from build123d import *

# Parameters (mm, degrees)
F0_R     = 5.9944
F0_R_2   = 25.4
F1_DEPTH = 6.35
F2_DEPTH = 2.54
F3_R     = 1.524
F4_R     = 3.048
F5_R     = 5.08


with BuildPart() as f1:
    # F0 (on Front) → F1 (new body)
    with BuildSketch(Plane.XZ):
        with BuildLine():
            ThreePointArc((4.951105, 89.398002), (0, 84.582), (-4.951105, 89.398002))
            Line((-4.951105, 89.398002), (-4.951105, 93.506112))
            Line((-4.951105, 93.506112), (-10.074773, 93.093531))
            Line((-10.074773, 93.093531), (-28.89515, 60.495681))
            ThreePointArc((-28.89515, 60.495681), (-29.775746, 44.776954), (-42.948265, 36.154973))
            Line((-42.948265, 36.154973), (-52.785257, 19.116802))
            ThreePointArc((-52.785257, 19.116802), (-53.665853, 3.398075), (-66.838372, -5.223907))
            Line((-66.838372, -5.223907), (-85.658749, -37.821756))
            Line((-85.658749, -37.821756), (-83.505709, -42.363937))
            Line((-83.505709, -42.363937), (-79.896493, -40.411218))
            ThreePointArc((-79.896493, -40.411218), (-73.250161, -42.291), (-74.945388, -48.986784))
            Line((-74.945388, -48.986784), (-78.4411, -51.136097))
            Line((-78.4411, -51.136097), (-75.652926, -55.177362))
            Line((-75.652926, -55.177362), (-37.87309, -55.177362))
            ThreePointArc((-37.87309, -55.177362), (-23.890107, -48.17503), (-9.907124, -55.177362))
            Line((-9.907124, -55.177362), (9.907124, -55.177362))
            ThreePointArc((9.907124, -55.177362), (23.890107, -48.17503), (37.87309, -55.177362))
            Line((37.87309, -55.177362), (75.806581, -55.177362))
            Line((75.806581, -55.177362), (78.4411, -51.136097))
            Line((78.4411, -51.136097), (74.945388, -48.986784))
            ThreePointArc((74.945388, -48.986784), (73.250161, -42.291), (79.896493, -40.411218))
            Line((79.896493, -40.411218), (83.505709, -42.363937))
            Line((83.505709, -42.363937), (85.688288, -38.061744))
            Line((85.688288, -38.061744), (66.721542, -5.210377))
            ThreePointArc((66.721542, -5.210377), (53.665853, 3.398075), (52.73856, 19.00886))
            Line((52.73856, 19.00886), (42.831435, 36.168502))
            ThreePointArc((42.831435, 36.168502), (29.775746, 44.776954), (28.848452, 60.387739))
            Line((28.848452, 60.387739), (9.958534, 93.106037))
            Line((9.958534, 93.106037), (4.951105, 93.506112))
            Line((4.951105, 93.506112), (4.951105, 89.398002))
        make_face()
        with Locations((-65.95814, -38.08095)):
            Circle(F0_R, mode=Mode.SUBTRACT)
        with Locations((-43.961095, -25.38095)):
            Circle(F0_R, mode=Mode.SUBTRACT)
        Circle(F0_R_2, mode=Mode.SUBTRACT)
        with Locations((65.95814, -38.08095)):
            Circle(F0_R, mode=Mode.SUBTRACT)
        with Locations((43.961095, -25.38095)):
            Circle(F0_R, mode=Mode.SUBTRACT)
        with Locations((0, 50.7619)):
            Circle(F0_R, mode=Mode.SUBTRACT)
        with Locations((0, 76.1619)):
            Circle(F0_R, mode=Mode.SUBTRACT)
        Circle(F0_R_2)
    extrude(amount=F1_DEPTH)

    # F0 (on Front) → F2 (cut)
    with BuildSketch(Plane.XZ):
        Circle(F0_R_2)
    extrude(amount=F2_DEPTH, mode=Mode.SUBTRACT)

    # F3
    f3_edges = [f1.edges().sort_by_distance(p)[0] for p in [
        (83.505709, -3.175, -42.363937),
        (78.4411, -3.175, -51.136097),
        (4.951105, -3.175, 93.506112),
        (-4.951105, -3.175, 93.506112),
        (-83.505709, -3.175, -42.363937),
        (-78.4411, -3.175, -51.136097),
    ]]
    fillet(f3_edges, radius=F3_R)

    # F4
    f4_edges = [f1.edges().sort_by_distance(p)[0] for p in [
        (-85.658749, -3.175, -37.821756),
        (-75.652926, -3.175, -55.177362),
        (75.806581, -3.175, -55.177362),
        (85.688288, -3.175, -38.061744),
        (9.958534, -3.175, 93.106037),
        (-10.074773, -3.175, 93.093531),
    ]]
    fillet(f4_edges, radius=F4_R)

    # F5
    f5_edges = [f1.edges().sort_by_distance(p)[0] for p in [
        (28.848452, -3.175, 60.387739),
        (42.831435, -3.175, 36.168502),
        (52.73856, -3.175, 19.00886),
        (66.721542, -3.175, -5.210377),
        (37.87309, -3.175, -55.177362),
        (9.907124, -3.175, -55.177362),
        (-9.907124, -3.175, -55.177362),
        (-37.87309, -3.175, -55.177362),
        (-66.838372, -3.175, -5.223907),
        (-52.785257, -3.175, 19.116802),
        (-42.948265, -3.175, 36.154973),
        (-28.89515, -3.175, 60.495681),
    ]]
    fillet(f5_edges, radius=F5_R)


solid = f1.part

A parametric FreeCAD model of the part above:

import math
import FreeCAD as App
import Part
import Sketcher

V = App.Vector
Q = App.Units.Quantity


def edges_at(feature, points):
    """Names of the edges that pass closest to the given points."""
    edges = feature.Shape.Edges
    near = lambda p: min(range(len(edges)), key=lambda i: edges[i].distToShape(Part.Vertex(*p))[0])
    return sorted({f"Edge{near(p) + 1}" for p in points})

doc = App.newDocument("Part")
params = doc.addObject("Spreadsheet::Sheet", "Params")
for row, (alias, value) in enumerate([
    ("sketch1_diameter", "0.472 in"),
    ("sketch1_diameter2", "0.472 in"),
    ("sketch1_diameter3", "0.472 in"),
    ("sketch1_diameter4", "0.472 in"),
    ("sketch1_diameter5", "0.472 in"),
    ("pad1_length", "0.25 in"),
    ("sketch2_diameter", "2 in"),
    ("pocket1_length", "0.1 in"),
    ("fillet_radius", "0.06 in"),
    ("fillet2_radius", "0.12 in"),
    ("fillet3_radius", "0.2 in"),
], start=1):
    params.set(f"A{row}", alias)
    params.set(f"B{row}", "=" + value)
    params.setAlias(f"B{row}", alias)

body = doc.addObject("PartDesign::Body", "Body")

sketch1 = doc.addObject("Sketcher::SketchObject", "Sketch")
body.addObject(sketch1)
sketch1.AttachmentSupport = (doc.XZ_Plane, [""])
sketch1.MapMode = "FlatFace"
sketch1.addGeometry(Part.ArcOfCircle(Part.Circle(V(0, 89.535, 0), V(0, 0, 1), 4.953), math.radians(-178.415019), math.radians(-1.584981)), False)
sketch1.addGeometry(Part.LineSegment(V(-4.951105, 89.398002, 0), V(-4.951105, 93.506112, 0)), False)
sketch1.addGeometry(Part.LineSegment(V(-4.951105, 93.506112, 0), V(-10.074773, 93.093531, 0)), False)
sketch1.addGeometry(Part.LineSegment(V(-10.074773, 93.093531, 0), V(-28.89515, 60.495681, 0)), False)
sketch1.addGeometry(Part.ArcOfCircle(Part.Circle(V(-44.898714, 53.508204, 0), V(0, 0, 1), 17.462499), math.radians(-83.587049), math.radians(23.587046)), False)
sketch1.addGeometry(Part.LineSegment(V(-42.948265, 36.154973, 0), V(-52.785257, 19.116802, 0)), False)
sketch1.addGeometry(Part.ArcOfCircle(Part.Circle(V(-68.788822, 12.129325, 0), V(0, 0, 1), 17.462501), math.radians(-83.587045), math.radians(23.587044)), False)
sketch1.addGeometry(Part.LineSegment(V(-66.838372, -5.223907, 0), V(-85.658749, -37.821756, 0)), False)
sketch1.addGeometry(Part.LineSegment(V(-85.658749, -37.821756, 0), V(-83.505709, -42.363937, 0)), False)
sketch1.addGeometry(Part.LineSegment(V(-83.505709, -42.363937, 0), V(-79.896493, -40.411218, 0)), False)
sketch1.addGeometry(Part.ArcOfCircle(Part.Circle(V(-77.539585, -44.7675, 0), V(0, 0, 1), 4.953), math.radians(-58.415012), math.radians(118.415009)), False)
sketch1.addGeometry(Part.LineSegment(V(-74.945388, -48.986784, 0), V(-78.4411, -51.136097, 0)), False)
sketch1.addGeometry(Part.LineSegment(V(-78.4411, -51.136097, 0), V(-75.652926, -55.177362, 0)), False)
sketch1.addGeometry(Part.LineSegment(V(-75.652926, -55.177362, 0), V(-37.87309, -55.177362, 0)), False)
sketch1.addGeometry(Part.ArcOfCircle(Part.Circle(V(-23.890107, -65.637532, 0), V(0, 0, 1), 17.462502), math.radians(36.798849), math.radians(143.201151)), False)
sketch1.addGeometry(Part.LineSegment(V(-9.907124, -55.177362, 0), V(9.907124, -55.177362, 0)), False)
sketch1.addGeometry(Part.ArcOfCircle(Part.Circle(V(23.890107, -65.637532, 0), V(0, 0, 1), 17.462502), math.radians(36.798849), math.radians(143.201151)), False)
sketch1.addGeometry(Part.LineSegment(V(37.87309, -55.177362, 0), V(75.806581, -55.177362, 0)), False)
sketch1.addGeometry(Part.LineSegment(V(75.806581, -55.177362, 0), V(78.4411, -51.136097, 0)), False)
sketch1.addGeometry(Part.LineSegment(V(78.4411, -51.136097, 0), V(74.945388, -48.986784, 0)), False)
sketch1.addGeometry(Part.ArcOfCircle(Part.Circle(V(77.539585, -44.7675, 0), V(0, 0, 1), 4.953), math.radians(61.584991), math.radians(238.415012)), False)
sketch1.addGeometry(Part.LineSegment(V(79.896493, -40.411218, 0), V(83.505709, -42.363937, 0)), False)
sketch1.addGeometry(Part.LineSegment(V(83.505709, -42.363937, 0), V(85.688288, -38.061744, 0)), False)
sketch1.addGeometry(Part.LineSegment(V(85.688288, -38.061744, 0), V(66.721542, -5.210377, 0)), False)
sketch1.addGeometry(Part.ArcOfCircle(Part.Circle(V(68.788822, 12.129325, 0), V(0, 0, 1), 17.4625), math.radians(156.798841), math.radians(263.201155)), False)
sketch1.addGeometry(Part.LineSegment(V(52.73856, 19.00886, 0), V(42.831435, 36.168502, 0)), False)
sketch1.addGeometry(Part.ArcOfCircle(Part.Circle(V(44.898715, 53.508205, 0), V(0, 0, 1), 17.462501), math.radians(156.798847), math.radians(263.201153)), False)
sketch1.addGeometry(Part.LineSegment(V(28.848452, 60.387739, 0), V(9.958534, 93.106037, 0)), False)
sketch1.addGeometry(Part.LineSegment(V(9.958534, 93.106037, 0), V(4.951105, 93.506112, 0)), False)
sketch1.addGeometry(Part.LineSegment(V(4.951105, 93.506112, 0), V(4.951105, 89.398002, 0)), False)
sketch1.addGeometry(Part.Circle(V(-65.95814, -38.08095, 0), V(0, 0, 1), 5.9944), False)
sketch1.addGeometry(Part.Circle(V(-43.961095, -25.38095, 0), V(0, 0, 1), 5.9944), False)
sketch1.addGeometry(Part.Circle(V(65.95814, -38.08095, 0), V(0, 0, 1), 5.9944), False)
sketch1.addGeometry(Part.Circle(V(43.961095, -25.38095, 0), V(0, 0, 1), 5.9944), False)
sketch1.addGeometry(Part.Circle(V(0, 50.7619, 0), V(0, 0, 1), 5.9944), False)
sketch1.addGeometry(Part.Circle(V(0, 76.1619, 0), V(0, 0, 1), 5.9944), False)
sketch1.addConstraint(Sketcher.Constraint("Coincident", 0, 1, 1, 1))
sketch1.addConstraint(Sketcher.Constraint("Coincident", 1, 2, 2, 1))
sketch1.addConstraint(Sketcher.Constraint("Coincident", 2, 2, 3, 1))
sketch1.addConstraint(Sketcher.Constraint("Coincident", 3, 2, 4, 2))
sketch1.addConstraint(Sketcher.Constraint("Coincident", 4, 1, 5, 1))
sketch1.addConstraint(Sketcher.Constraint("Coincident", 5, 2, 6, 2))
sketch1.addConstraint(Sketcher.Constraint("Coincident", 6, 1, 7, 1))
sketch1.addConstraint(Sketcher.Constraint("Coincident", 7, 2, 8, 1))
sketch1.addConstraint(Sketcher.Constraint("Coincident", 8, 2, 9, 1))
sketch1.addConstraint(Sketcher.Constraint("Coincident", 9, 2, 10, 2))
sketch1.addConstraint(Sketcher.Constraint("Coincident", 10, 1, 11, 1))
sketch1.addConstraint(Sketcher.Constraint("Coincident", 11, 2, 12, 1))
sketch1.addConstraint(Sketcher.Constraint("Coincident", 12, 2, 13, 1))
sketch1.addConstraint(Sketcher.Constraint("Coincident", 13, 2, 14, 2))
sketch1.addConstraint(Sketcher.Constraint("Coincident", 14, 1, 15, 1))
sketch1.addConstraint(Sketcher.Constraint("Coincident", 15, 2, 16, 2))
sketch1.addConstraint(Sketcher.Constraint("Coincident", 16, 1, 17, 1))
sketch1.addConstraint(Sketcher.Constraint("Coincident", 17, 2, 18, 1))
sketch1.addConstraint(Sketcher.Constraint("Coincident", 18, 2, 19, 1))
sketch1.addConstraint(Sketcher.Constraint("Coincident", 19, 2, 20, 2))
sketch1.addConstraint(Sketcher.Constraint("Coincident", 20, 1, 21, 1))
sketch1.addConstraint(Sketcher.Constraint("Coincident", 21, 2, 22, 1))
sketch1.addConstraint(Sketcher.Constraint("Coincident", 22, 2, 23, 1))
sketch1.addConstraint(Sketcher.Constraint("Coincident", 23, 2, 24, 2))
sketch1.addConstraint(Sketcher.Constraint("Coincident", 24, 1, 25, 1))
sketch1.addConstraint(Sketcher.Constraint("Coincident", 25, 2, 26, 2))
sketch1.addConstraint(Sketcher.Constraint("Coincident", 26, 1, 27, 1))
sketch1.addConstraint(Sketcher.Constraint("Coincident", 27, 2, 28, 1))
sketch1.addConstraint(Sketcher.Constraint("Coincident", 28, 2, 29, 1))
sketch1.addConstraint(Sketcher.Constraint("Coincident", 29, 2, 0, 2))
sketch1.addConstraint(Sketcher.Constraint("Vertical", 1))
sketch1.addConstraint(Sketcher.Constraint("Horizontal", 13))
sketch1.addConstraint(Sketcher.Constraint("Horizontal", 15))
sketch1.addConstraint(Sketcher.Constraint("Horizontal", 17))
sketch1.addConstraint(Sketcher.Constraint("Vertical", 29))
sketch1.addConstraint(Sketcher.Constraint("PointOnObject", 0, 3, -2))
sketch1.addConstraint(Sketcher.Constraint("PointOnObject", 34, 3, -2))
sketch1.addConstraint(Sketcher.Constraint("PointOnObject", 35, 3, -2))
sketch1.addConstraint(Sketcher.Constraint("Diameter", 30, Q("0.472 in")))
sketch1.addConstraint(Sketcher.Constraint("Diameter", 31, Q("0.472 in")))
sketch1.addConstraint(Sketcher.Constraint("Diameter", 32, Q("0.472 in")))
sketch1.addConstraint(Sketcher.Constraint("Diameter", 33, Q("0.472 in")))
sketch1.addConstraint(Sketcher.Constraint("Diameter", 34, Q("0.472 in")))
sketch1.addConstraint(Sketcher.Constraint("Diameter", 35, Q("0.472 in")))
sketch1.addConstraint(Sketcher.Constraint("Radius", 0, Q("0.195 in")))
sketch1.addConstraint(Sketcher.Constraint("Radius", 4, Q("0.6875 in")))
sketch1.addConstraint(Sketcher.Constraint("Radius", 6, Q("0.6875 in")))
sketch1.addConstraint(Sketcher.Constraint("Radius", 10, Q("0.195 in")))
sketch1.addConstraint(Sketcher.Constraint("Radius", 14, Q("0.6875001 in")))
sketch1.addConstraint(Sketcher.Constraint("Radius", 16, Q("0.6875001 in")))
sketch1.addConstraint(Sketcher.Constraint("Radius", 20, Q("0.195 in")))
sketch1.addConstraint(Sketcher.Constraint("Radius", 24, Q("0.6875 in")))
sketch1.addConstraint(Sketcher.Constraint("Radius", 26, Q("0.6875 in")))
sketch1.addConstraint(Sketcher.Constraint("DistanceY", 34, 3, 35, 3, Q("1 in")))
sketch1.addConstraint(Sketcher.Constraint("DistanceY", 30, 3, 31, 3, Q("0.5 in")))
sketch1.addConstraint(Sketcher.Constraint("DistanceY", 32, 3, 33, 3, Q("0.5 in")))
sketch1.addConstraint(Sketcher.Constraint("DistanceY", -1, 1, 0, 3, Q("3.525 in")))
sketch1.addConstraint(Sketcher.Constraint("DistanceY", 10, 3, -1, 1, Q("1.7625 in")))
sketch1.addConstraint(Sketcher.Constraint("DistanceY", 20, 3, -1, 1, Q("1.7625 in")))
sketch1.addConstraint(Sketcher.Constraint("DistanceY", -1, 1, 34, 3, Q("1.9985 in")))
sketch1.addConstraint(Sketcher.Constraint("DistanceX", 24, 1, 24, 3, Q("0.6319001 in")))
sketch1.addConstraint(Sketcher.Constraint("DistanceX", 26, 1, 26, 3, Q("0.6319001 in")))
sketch1.addConstraint(Sketcher.Constraint("Distance", 11, 4.103602))
sketch1.addConstraint(Sketcher.Constraint("Distance", 19, 4.103602))
sketch1.addConstraint(Sketcher.Constraint("DistanceX", 17, 1, 17, 2, 37.933491))
sketch1.addConstraint(Sketcher.Constraint("DistanceY", 1, 1, 1, 2, 4.10811))
sketch1.addConstraint(Sketcher.Constraint("DistanceY", 29, 2, 29, 1, 4.10811))
sketch1.addConstraint(Sketcher.Constraint("DistanceY", -1, 1, 0, 1, 89.398002))
sketch1.addConstraint(Sketcher.Constraint("DistanceY", -1, 1, 5, 2, 19.116802))
sketch1.addConstraint(Sketcher.Constraint("DistanceX", 11, 2, -1, 1, 78.4411))
sketch1.addConstraint(Sketcher.Constraint("DistanceX", -1, 1, 18, 2, 78.4411))
sketch1.addConstraint(Sketcher.Constraint("DistanceY", -1, 1, 25, 2, 36.168502))
sketch1.addConstraint(Sketcher.Constraint("DistanceX", 4, 3, 20, 3, 122.438299))
sketch1.addConstraint(Sketcher.Constraint("DistanceX", 10, 1, 13, 2, 37.072298))
sketch1.addConstraint(Sketcher.Constraint("DistanceX", 19, 2, 22, 2, 10.7429))
sketch1.addConstraint(Sketcher.Constraint("DistanceY", 23, 2, 24, 3, 17.339702))
sketch1.addConstraint(Sketcher.Constraint("DistanceX", 32, 3, 23, 2, 0.763402))
sketch1.addConstraint(Sketcher.Constraint("DistanceY", 29, 2, 0, 3, 0.136998))
sketch1.addConstraint(Sketcher.Constraint("Distance", 8, 5.026628))
sketch1.addConstraint(Sketcher.Constraint("Distance", 12, 4.909759))
sketch1.addConstraint(Sketcher.Constraint("Distance", 18, 4.824159))
sketch1.addConstraint(Sketcher.Constraint("Distance", 22, 4.82416))
sketch1.addConstraint(Sketcher.Constraint("Distance", 23, 37.933491))
sketch1.addConstraint(Sketcher.Constraint("Distance", 25, 19.814248))
sketch1.addConstraint(Sketcher.Constraint("DistanceX", 13, 1, 13, 2, 37.779836))
sketch1.addConstraint(Sketcher.Constraint("DistanceX", 15, 1, 15, 2, 19.814248))
sketch1.addConstraint(Sketcher.Constraint("DistanceY", 14, 3, -1, 1, 65.637532))
sketch1.addConstraint(Sketcher.Constraint("DistanceY", 16, 3, -1, 1, 65.637532))
sketch1.addConstraint(Sketcher.Constraint("DistanceX", -1, 1, 24, 3, 68.788822))
sketch1.addConstraint(Sketcher.Constraint("DistanceX", 30, 3, -1, 1, 65.95814))
sketch1.addConstraint(Sketcher.Constraint("DistanceY", 30, 3, -1, 1, 38.08095))
sketch1.addConstraint(Sketcher.Constraint("DistanceY", 32, 3, -1, 1, 38.08095))
sketch1.addConstraint(Sketcher.Constraint("DistanceY", -1, 1, 2, 2, 93.093531))
sketch1.addConstraint(Sketcher.Constraint("DistanceX", 3, 2, -1, 1, 28.89515))
sketch1.addConstraint(Sketcher.Constraint("DistanceY", -1, 1, 3, 2, 60.495681))
sketch1.addConstraint(Sketcher.Constraint("DistanceX", 7, 2, -1, 1, 85.658749))
sketch1.addConstraint(Sketcher.Constraint("DistanceX", 8, 2, -1, 1, 83.505709))
sketch1.addConstraint(Sketcher.Constraint("DistanceX", 10, 1, -1, 1, 74.945388))
sketch1.addConstraint(Sketcher.Constraint("DistanceY", 14, 1, -1, 1, 55.177362))
sketch1.addConstraint(Sketcher.Constraint("DistanceX", -1, 1, 16, 1, 37.87309))
sketch1.addConstraint(Sketcher.Constraint("DistanceY", 16, 1, -1, 1, 55.177362))
sketch1.addConstraint(Sketcher.Constraint("DistanceY", 20, 1, -1, 1, 40.411218))
sketch1.addConstraint(Sketcher.Constraint("DistanceX", -1, 1, 21, 2, 83.505709))
sketch1.addConstraint(Sketcher.Constraint("DistanceX", -1, 1, 22, 2, 85.688288))
sketch1.addConstraint(Sketcher.Constraint("DistanceY", -1, 1, 24, 1, 19.00886))
sketch1.addConstraint(Sketcher.Constraint("DistanceY", -1, 1, 26, 1, 60.387739))
sketch1.addConstraint(Sketcher.Constraint("DistanceX", 6, 3, 4, 3, 23.890108))
sketch1.addConstraint(Sketcher.Constraint("DistanceY", 6, 3, 4, 3, 41.378879))
sketch1.addConstraint(Sketcher.Constraint("DistanceX", 10, 3, 31, 3, 33.57849))
sketch1.addConstraint(Sketcher.Constraint("DistanceX", 33, 3, 20, 3, 33.57849))
sketch1.addConstraint(Sketcher.Constraint("DistanceX", 2, 2, 1, 2, 5.123668))
sketch1.addConstraint(Sketcher.Constraint("DistanceX", 4, 3, 4, 1, 1.950449))
sketch1.addConstraint(Sketcher.Constraint("DistanceX", 6, 3, 6, 1, 1.95045))
sketch1.addConstraint(Sketcher.Constraint("DistanceY", 7, 2, 6, 1, 32.597849))
sketch1.addConstraint(Sketcher.Constraint("DistanceY", 8, 2, 9, 2, 1.952719))
sketch1.addConstraint(Sketcher.Constraint("DistanceX", 1, 2, 27, 2, 14.909639))
sketch1.addConstraint(Sketcher.Constraint("Distance", 27, 37.779836))
sketch1.setExpression("Constraints[38]", "Params.sketch1_diameter")
sketch1.setExpression("Constraints[39]", "Params.sketch1_diameter2")
sketch1.setExpression("Constraints[40]", "Params.sketch1_diameter3")
sketch1.setExpression("Constraints[41]", "Params.sketch1_diameter4")
sketch1.setExpression("Constraints[42]", "Params.sketch1_diameter5")
pad1 = doc.addObject("PartDesign::Pad", "Pad")
body.addObject(pad1)
pad1.Profile = sketch1
pad1.setExpression("Length", "Params.pad1_length")

sketch2 = doc.addObject("Sketcher::SketchObject", "Sketch001")
body.addObject(sketch2)
sketch2.AttachmentSupport = (doc.XZ_Plane, [""])
sketch2.MapMode = "FlatFace"
sketch2.addGeometry(Part.Circle(V(0, 0, 0), V(0, 0, 1), 25), False)
sketch2.addConstraint(Sketcher.Constraint("Coincident", 0, 3, -1, 1))
sketch2.addConstraint(Sketcher.Constraint("Diameter", 0, Q("2 in")))
sketch2.setExpression("Constraints[1]", "Params.sketch2_diameter")
pocket1 = doc.addObject("PartDesign::Pocket", "Pocket")
body.addObject(pocket1)
pocket1.Profile = sketch2
pocket1.setExpression("Length", "Params.pocket1_length")
pocket1.Reversed = True
doc.recompute()

fillet = doc.addObject("PartDesign::Fillet", "Fillet")
body.addObject(fillet)
fillet.Base = (pocket1, edges_at(pocket1, [
    (83.506, -3.175, -42.364),
    (78.441, -3.175, -51.136),
    (4.951, -3.175, 93.506),
    (-4.951, -3.175, 93.506),
    (-83.506, -3.175, -42.364),
    (-78.441, -3.175, -51.136),
]))
fillet.setExpression("Radius", "Params.fillet_radius")
doc.recompute()

fillet2 = doc.addObject("PartDesign::Fillet", "Fillet001")
body.addObject(fillet2)
fillet2.Base = (fillet, edges_at(fillet, [
    (-85.659, -3.175, -37.822),
    (-75.653, -3.175, -55.177),
    (75.807, -3.175, -55.177),
    (85.688, -3.175, -38.062),
    (9.959, -3.175, 93.106),
    (-10.075, -3.175, 93.094),
]))
fillet2.setExpression("Radius", "Params.fillet2_radius")
doc.recompute()

fillet3 = doc.addObject("PartDesign::Fillet", "Fillet002")
body.addObject(fillet3)
fillet3.Base = (fillet2, edges_at(fillet2, [
    (28.848, -3.175, 60.388),
    (42.831, -3.175, 36.169),
    (52.739, -3.175, 19.009),
    (66.722, -3.175, -5.21),
    (37.873, -3.175, -55.177),
    (9.907, -3.175, -55.177),
    (-9.907, -3.175, -55.177),
    (-37.873, -3.175, -55.177),
    (-66.838, -3.175, -5.224),
    (-52.785, -3.175, 19.117),
    (-42.948, -3.175, 36.155),
    (-28.895, -3.175, 60.496),
]))
fillet3.setExpression("Radius", "Params.fillet3_radius")

doc.recompute()
